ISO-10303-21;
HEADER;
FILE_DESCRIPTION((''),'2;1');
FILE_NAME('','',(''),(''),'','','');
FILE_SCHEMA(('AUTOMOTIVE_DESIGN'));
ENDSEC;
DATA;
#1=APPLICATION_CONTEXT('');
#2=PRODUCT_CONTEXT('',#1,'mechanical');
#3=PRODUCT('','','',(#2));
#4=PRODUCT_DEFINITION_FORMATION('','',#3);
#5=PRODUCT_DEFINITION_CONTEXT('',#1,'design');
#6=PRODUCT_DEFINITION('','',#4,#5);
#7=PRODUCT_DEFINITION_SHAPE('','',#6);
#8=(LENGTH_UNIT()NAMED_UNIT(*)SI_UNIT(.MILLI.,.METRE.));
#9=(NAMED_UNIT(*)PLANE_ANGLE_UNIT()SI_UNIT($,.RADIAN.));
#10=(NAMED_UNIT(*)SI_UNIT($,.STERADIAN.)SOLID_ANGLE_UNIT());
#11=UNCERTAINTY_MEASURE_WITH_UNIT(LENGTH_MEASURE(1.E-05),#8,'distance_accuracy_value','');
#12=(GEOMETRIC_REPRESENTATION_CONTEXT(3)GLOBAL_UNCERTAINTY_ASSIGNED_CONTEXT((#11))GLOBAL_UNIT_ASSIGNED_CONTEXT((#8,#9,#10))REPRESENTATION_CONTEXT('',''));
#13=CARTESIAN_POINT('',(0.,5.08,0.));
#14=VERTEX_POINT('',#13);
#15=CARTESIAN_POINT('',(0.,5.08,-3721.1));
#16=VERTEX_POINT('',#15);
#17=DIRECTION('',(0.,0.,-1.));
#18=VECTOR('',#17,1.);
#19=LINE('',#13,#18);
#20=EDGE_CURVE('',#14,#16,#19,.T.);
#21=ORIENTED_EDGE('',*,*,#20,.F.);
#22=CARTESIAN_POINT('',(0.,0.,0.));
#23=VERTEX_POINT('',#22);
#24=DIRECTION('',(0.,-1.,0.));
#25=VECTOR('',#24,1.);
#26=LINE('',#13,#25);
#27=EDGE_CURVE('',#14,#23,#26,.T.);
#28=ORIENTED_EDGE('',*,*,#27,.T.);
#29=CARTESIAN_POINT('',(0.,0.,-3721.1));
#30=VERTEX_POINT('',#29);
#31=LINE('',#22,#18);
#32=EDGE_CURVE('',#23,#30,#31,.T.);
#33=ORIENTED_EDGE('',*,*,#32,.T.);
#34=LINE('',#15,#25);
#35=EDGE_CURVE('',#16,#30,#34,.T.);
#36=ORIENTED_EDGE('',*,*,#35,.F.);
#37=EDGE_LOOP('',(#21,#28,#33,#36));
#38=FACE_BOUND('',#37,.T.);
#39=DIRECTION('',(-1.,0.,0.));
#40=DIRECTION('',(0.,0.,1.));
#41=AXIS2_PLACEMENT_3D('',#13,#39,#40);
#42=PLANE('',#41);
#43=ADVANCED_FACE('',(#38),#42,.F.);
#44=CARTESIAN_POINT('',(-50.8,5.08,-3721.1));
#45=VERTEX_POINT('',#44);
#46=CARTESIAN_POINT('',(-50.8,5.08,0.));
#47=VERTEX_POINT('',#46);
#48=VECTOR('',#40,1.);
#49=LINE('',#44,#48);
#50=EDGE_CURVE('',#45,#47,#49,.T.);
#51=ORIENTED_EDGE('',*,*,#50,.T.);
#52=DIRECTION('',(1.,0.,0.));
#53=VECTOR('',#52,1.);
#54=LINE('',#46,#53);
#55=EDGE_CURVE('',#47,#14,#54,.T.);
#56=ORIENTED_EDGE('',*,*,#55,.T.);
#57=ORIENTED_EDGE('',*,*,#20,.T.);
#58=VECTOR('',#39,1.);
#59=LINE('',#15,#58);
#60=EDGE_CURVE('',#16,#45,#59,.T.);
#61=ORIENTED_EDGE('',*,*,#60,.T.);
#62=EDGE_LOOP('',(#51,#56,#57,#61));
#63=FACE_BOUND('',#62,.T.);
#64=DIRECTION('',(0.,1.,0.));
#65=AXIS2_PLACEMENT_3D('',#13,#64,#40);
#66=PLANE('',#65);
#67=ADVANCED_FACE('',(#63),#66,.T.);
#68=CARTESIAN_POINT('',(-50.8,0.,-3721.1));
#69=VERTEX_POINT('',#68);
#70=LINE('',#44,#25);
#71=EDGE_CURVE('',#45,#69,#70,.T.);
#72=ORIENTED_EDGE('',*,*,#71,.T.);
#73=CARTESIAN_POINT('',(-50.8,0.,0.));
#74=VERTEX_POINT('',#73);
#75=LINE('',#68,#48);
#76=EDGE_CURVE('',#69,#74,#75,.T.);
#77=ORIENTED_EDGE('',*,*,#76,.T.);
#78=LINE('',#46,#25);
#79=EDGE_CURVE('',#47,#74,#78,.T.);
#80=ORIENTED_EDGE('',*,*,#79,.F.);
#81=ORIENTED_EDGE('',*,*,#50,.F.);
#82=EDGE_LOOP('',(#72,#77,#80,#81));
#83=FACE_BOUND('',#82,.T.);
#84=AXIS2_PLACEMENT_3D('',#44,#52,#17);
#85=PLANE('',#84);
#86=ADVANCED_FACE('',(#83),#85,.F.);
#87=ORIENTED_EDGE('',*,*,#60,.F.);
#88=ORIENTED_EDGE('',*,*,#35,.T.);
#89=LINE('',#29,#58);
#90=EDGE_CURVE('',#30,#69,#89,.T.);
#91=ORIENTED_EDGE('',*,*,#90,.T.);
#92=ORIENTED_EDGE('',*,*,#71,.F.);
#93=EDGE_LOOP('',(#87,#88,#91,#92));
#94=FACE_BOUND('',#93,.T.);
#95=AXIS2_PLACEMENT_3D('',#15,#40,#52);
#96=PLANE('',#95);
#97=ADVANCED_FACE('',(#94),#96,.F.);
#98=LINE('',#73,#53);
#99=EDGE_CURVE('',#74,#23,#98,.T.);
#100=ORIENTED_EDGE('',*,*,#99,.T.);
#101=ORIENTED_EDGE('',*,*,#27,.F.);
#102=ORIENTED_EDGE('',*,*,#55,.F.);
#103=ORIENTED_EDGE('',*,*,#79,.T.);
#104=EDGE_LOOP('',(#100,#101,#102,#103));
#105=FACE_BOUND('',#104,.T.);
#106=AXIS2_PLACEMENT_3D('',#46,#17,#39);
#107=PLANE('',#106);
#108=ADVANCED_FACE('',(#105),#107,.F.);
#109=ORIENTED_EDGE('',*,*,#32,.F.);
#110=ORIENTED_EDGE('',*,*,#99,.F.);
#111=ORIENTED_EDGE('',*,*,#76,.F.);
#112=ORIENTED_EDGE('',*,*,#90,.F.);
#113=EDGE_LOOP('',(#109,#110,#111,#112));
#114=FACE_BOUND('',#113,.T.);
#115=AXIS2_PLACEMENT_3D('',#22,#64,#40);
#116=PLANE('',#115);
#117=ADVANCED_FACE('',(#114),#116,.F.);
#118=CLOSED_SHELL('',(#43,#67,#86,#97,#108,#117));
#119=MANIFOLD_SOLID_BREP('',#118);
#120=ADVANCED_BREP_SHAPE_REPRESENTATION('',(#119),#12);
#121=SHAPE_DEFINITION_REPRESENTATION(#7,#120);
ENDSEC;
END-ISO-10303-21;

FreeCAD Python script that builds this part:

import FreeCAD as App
import Part
import Sketcher
Q = App.Units.Quantity

doc = App.newDocument("Part")
body = doc.addObject("PartDesign::Body", "Body")

# Sketch on XZ plane
sketch1 = doc.addObject("Sketcher::SketchObject", "Sketch")
body.addObject(sketch1)
sketch1.AttachmentSupport = (doc.XZ_Plane, [""])
sketch1.MapMode = "FlatFace"
sketch1.addGeometry([
    Part.LineSegment(App.Vector(-51, -3721, 0), App.Vector(-51, 0, 0)),
    Part.LineSegment(App.Vector(-51, 0, 0), App.Vector(0, 0, 0)),
    Part.LineSegment(App.Vector(0, 0, 0), App.Vector(0, -3721, 0)),
    Part.LineSegment(App.Vector(0, -3721, 0), App.Vector(-51, -3721, 0)),
], False)
sketch1.addConstraint([
    Sketcher.Constraint("Coincident", 0, 2, 1, 1),
    Sketcher.Constraint("Coincident", 1, 2, 2, 1),
    Sketcher.Constraint("Coincident", 2, 2, 3, 1),
    Sketcher.Constraint("Coincident", 3, 2, 0, 1),
    Sketcher.Constraint("Vertical", 0),
    Sketcher.Constraint("Horizontal", 1),
    Sketcher.Constraint("Vertical", 2),
    Sketcher.Constraint("Horizontal", 3),
    Sketcher.Constraint("Coincident", 1, 2, -1, 1),
    Sketcher.Constraint("DistanceX", 1, 1, 1, 2, Q("2 in")),
    Sketcher.Constraint("DistanceY", 0, 1, 0, 2, Q("146.5 in")),
])
pad1 = doc.addObject("PartDesign::Pad", "Pad")
body.addObject(pad1)
pad1.Profile = sketch1
pad1.Length = Q("0.2 in")
pad1.Reversed = True

doc.recompute()
